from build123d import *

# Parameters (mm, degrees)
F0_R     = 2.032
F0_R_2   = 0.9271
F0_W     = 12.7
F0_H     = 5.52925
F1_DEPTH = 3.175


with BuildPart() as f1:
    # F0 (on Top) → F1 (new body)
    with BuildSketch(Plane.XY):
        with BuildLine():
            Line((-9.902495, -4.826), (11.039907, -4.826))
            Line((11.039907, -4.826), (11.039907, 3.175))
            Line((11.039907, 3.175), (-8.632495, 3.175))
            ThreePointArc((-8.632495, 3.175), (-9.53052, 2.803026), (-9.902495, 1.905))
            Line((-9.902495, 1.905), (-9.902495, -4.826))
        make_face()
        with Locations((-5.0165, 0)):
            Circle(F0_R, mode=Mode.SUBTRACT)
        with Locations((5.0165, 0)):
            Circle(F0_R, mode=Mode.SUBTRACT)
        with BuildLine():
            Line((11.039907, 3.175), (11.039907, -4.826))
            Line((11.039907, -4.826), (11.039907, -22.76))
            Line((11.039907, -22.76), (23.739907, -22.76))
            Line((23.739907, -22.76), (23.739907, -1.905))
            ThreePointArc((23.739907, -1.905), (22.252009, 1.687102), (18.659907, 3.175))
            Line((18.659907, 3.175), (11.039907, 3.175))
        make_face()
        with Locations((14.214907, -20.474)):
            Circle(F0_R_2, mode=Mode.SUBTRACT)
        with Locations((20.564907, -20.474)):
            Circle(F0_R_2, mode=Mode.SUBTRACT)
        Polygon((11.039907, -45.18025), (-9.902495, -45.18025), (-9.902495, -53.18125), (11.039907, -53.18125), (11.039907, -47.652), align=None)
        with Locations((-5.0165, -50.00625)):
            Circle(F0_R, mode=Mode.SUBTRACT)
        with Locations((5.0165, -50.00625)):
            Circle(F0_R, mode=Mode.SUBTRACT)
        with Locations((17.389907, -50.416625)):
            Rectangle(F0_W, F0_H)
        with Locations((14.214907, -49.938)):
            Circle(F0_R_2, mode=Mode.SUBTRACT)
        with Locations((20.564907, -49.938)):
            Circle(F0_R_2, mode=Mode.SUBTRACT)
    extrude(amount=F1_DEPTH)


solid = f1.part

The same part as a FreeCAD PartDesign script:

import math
import FreeCAD as App
import Part
import Sketcher

V = App.Vector
Q = App.Units.Quantity

doc = App.newDocument("Part")
params = doc.addObject("Spreadsheet::Sheet", "Params")
for row, (alias, value) in enumerate([
    ("sketch1_radius", "0.2000001 in"),
    ("sketch1_diameter", "0.16 in"),
    ("sketch1_radius2", "0.05 in"),
    ("sketch1_diameter2", "0.073 in"),
    ("sketch1_width", "0.5 in"),
    ("pad1_length", "0.125 in"),
], start=1):
    params.set(f"A{row}", alias)
    params.set(f"B{row}", "=" + value)
    params.setAlias(f"B{row}", alias)

body = doc.addObject("PartDesign::Body", "Body")
body.AllowCompound = True

# Sketch on XY plane
sketch1 = doc.addObject("Sketcher::SketchObject", "Sketch")
body.addObject(sketch1)
sketch1.AttachmentSupport = (doc.XY_Plane, [""])
sketch1.MapMode = "FlatFace"
sketch1.addGeometry(Part.LineSegment(V(-9.9, -4.8, 0), V(11, -4.8, 0)), False)
sketch1.addGeometry(Part.LineSegment(V(11, -4.8, 0), V(11, -22.8, 0)), False)
sketch1.addGeometry(Part.LineSegment(V(11, -22.8, 0), V(23.7, -22.8, 0)), False)
sketch1.addGeometry(Part.LineSegment(V(23.7, -22.8, 0), V(23.7, -1.9, 0)), False)
sketch1.addGeometry(Part.ArcOfCircle(Part.Circle(V(18.7, -1.9, 0), V(0, 0, 1), 5.1), math.radians(0), math.radians(90)), False)
sketch1.addGeometry(Part.LineSegment(V(18.7, 3.2, 0), V(-8.6, 3.2, 0)), False)
sketch1.addGeometry(Part.ArcOfCircle(Part.Circle(V(-8.6, 1.9, 0), V(0, 0, 1), 1.3), math.radians(90), math.radians(180)), False)
sketch1.addGeometry(Part.LineSegment(V(-9.9, 1.9, 0), V(-9.9, -4.8, 0)), False)
sketch1.addGeometry(Part.Circle(V(14.2, -20.5, 0), V(0, 0, 1), 0.9), False)
sketch1.addGeometry(Part.Circle(V(20.6, -20.5, 0), V(0, 0, 1), 0.9), False)
sketch1.addGeometry(Part.Circle(V(-5, 0, 0), V(0, 0, 1), 2), False)
sketch1.addGeometry(Part.Circle(V(5, 0, 0), V(0, 0, 1), 2), False)
sketch1.addGeometry(Part.LineSegment(V(11, -45.2, 0), V(-9.9, -45.2, 0)), False)
sketch1.addGeometry(Part.LineSegment(V(-9.9, -45.2, 0), V(-9.9, -53.2, 0)), False)
sketch1.addGeometry(Part.LineSegment(V(-9.9, -53.2, 0), V(23.7, -53.2, 0)), False)
sketch1.addGeometry(Part.LineSegment(V(23.7, -53.2, 0), V(23.7, -47.7, 0)), False)
sketch1.addGeometry(Part.LineSegment(V(23.7, -47.7, 0), V(11, -47.7, 0)), False)
sketch1.addGeometry(Part.LineSegment(V(11, -47.7, 0), V(11, -45.2, 0)), False)
sketch1.addGeometry(Part.Circle(V(-5, -50, 0), V(0, 0, 1), 2), False)
sketch1.addGeometry(Part.Circle(V(5, -50, 0), V(0, 0, 1), 2), False)
sketch1.addGeometry(Part.Circle(V(14.2, -49.9, 0), V(0, 0, 1), 0.9), False)
sketch1.addGeometry(Part.Circle(V(20.6, -49.9, 0), V(0, 0, 1), 0.9), False)
sketch1.addConstraint(Sketcher.Constraint("Coincident", 0, 2, 1, 1))
sketch1.addConstraint(Sketcher.Constraint("Coincident", 1, 2, 2, 1))
sketch1.addConstraint(Sketcher.Constraint("Coincident", 2, 2, 3, 1))
sketch1.addConstraint(Sketcher.Constraint("Tangent", 3, 2, 4, 1))
sketch1.addConstraint(Sketcher.Constraint("Tangent", 4, 2, 5, 1))
sketch1.addConstraint(Sketcher.Constraint("Tangent", 5, 2, 6, 1))
sketch1.addConstraint(Sketcher.Constraint("Tangent", 6, 2, 7, 1))
sketch1.addConstraint(Sketcher.Constraint("Coincident", 7, 2, 0, 1))
sketch1.addConstraint(Sketcher.Constraint("Coincident", 12, 2, 13, 1))
sketch1.addConstraint(Sketcher.Constraint("Coincident", 13, 2, 14, 1))
sketch1.addConstraint(Sketcher.Constraint("Coincident", 14, 2, 15, 1))
sketch1.addConstraint(Sketcher.Constraint("Coincident", 15, 2, 16, 1))
sketch1.addConstraint(Sketcher.Constraint("Coincident", 16, 2, 17, 1))
sketch1.addConstraint(Sketcher.Constraint("Coincident", 17, 2, 12, 1))
sketch1.addConstraint(Sketcher.Constraint("Horizontal", 0))
sketch1.addConstraint(Sketcher.Constraint("Vertical", 1))
sketch1.addConstraint(Sketcher.Constraint("Horizontal", 2))
sketch1.addConstraint(Sketcher.Constraint("Vertical", 3))
sketch1.addConstraint(Sketcher.Constraint("Horizontal", 5))
sketch1.addConstraint(Sketcher.Constraint("Vertical", 7))
sketch1.addConstraint(Sketcher.Constraint("Horizontal", 12))
sketch1.addConstraint(Sketcher.Constraint("Vertical", 13))
sketch1.addConstraint(Sketcher.Constraint("Horizontal", 14))
sketch1.addConstraint(Sketcher.Constraint("Vertical", 15))
sketch1.addConstraint(Sketcher.Constraint("Horizontal", 16))
sketch1.addConstraint(Sketcher.Constraint("Vertical", 17))
sketch1.addConstraint(Sketcher.Constraint("Equal", 8, 9))
sketch1.addConstraint(Sketcher.Constraint("Equal", 10, 11))
sketch1.addConstraint(Sketcher.Constraint("Equal", 11, 18))
sketch1.addConstraint(Sketcher.Constraint("Equal", 18, 19))
sketch1.addConstraint(Sketcher.Constraint("Equal", 9, 20))
sketch1.addConstraint(Sketcher.Constraint("Equal", 20, 21))
sketch1.addConstraint(Sketcher.Constraint("Symmetric", 10, 3, 11, 3, -1, 1))
sketch1.addConstraint(Sketcher.Constraint("Symmetric", 18, 3, 19, 3, -2))
sketch1.addConstraint(Sketcher.Constraint("PointOnObject", 10, 3, -1))
sketch1.addConstraint(Sketcher.Constraint("Horizontal", 8, 3, 9, 3))
sketch1.addConstraint(Sketcher.Constraint("Horizontal", 20, 3, 21, 3))
sketch1.addConstraint(Sketcher.Constraint("Vertical", 10, 3, 18, 3))
sketch1.addConstraint(Sketcher.Constraint("Vertical", 8, 3, 20, 3))
sketch1.addConstraint(Sketcher.Constraint("Vertical", 9, 3, 21, 3))
sketch1.addConstraint(Sketcher.Constraint("Vertical", 7, 2, 12, 2))
sketch1.addConstraint(Sketcher.Constraint("Vertical", 3, 2, 14, 2))
sketch1.addConstraint(Sketcher.Constraint("Vertical", 1, 2, 16, 2))
sketch1.addConstraint(Sketcher.Constraint("Radius", 4, Q("0.2000001 in")))
sketch1.addConstraint(Sketcher.Constraint("Diameter", 10, Q("0.16 in")))
sketch1.addConstraint(Sketcher.Constraint("Radius", 6, Q("0.05 in")))
sketch1.addConstraint(Sketcher.Constraint("Diameter", 8, Q("0.073 in")))
sketch1.addConstraint(Sketcher.Constraint("DistanceX", 2, 1, 2, 2, Q("0.5 in")))
sketch1.addConstraint(Sketcher.Constraint("DistanceY", 7, 2, 7, 1, Q("0.265 in")))
sketch1.addConstraint(Sketcher.Constraint("DistanceY", 13, 2, 13, 1, Q("0.315 in")))
sketch1.addConstraint(Sketcher.Constraint("DistanceY", 0, 2, -1, 1, Q("0.19 in")))
sketch1.addConstraint(Sketcher.Constraint("DistanceX", 8, 3, 9, 3, Q("0.25 in")))
sketch1.addConstraint(Sketcher.Constraint("DistanceY", 20, 3, 8, 3, Q("1.16 in")))
sketch1.addConstraint(Sketcher.Constraint("DistanceY", 1, 2, 8, 3, Q("0.09 in")))
sketch1.addConstraint(Sketcher.Constraint("DistanceY", 18, 3, 12, 2, Q("0.19 in")))
sketch1.addConstraint(Sketcher.Constraint("DistanceY", 21, 3, 15, 2, Q("0.09 in")))
sketch1.addConstraint(Sketcher.Constraint("DistanceY", 18, 3, -1, 1, Q("1.96875 in")))
sketch1.addConstraint(Sketcher.Constraint("DistanceX", 8, 3, 4, 3, Q("0.1749999 in")))
sketch1.addConstraint(Sketcher.Constraint("DistanceX", 10, 3, 11, 3, Q("0.395 in")))
sketch1.addConstraint(Sketcher.Constraint("DistanceX", 14, 1, 14, 2, Q("33.642402 mm")))
sketch1.addConstraint(Sketcher.Constraint("DistanceY", 1, 2, 1, 1, Q("17.934 mm")))
sketch1.addConstraint(Sketcher.Constraint("DistanceX", -1, 1, 4, 3, Q("18.659905 mm")))
sketch1.setExpression("Constraints[43]", "Params.sketch1_radius")
sketch1.setExpression("Constraints[44]", "Params.sketch1_diameter")
sketch1.setExpression("Constraints[45]", "Params.sketch1_radius2")
sketch1.setExpression("Constraints[46]", "Params.sketch1_diameter2")
sketch1.setExpression("Constraints[47]", "Params.sketch1_width")
pad1 = doc.addObject("PartDesign::Pad", "Pad")
body.addObject(pad1)
pad1.Profile = sketch1
pad1.setExpression("Length", "Params.pad1_length")

doc.recompute()
